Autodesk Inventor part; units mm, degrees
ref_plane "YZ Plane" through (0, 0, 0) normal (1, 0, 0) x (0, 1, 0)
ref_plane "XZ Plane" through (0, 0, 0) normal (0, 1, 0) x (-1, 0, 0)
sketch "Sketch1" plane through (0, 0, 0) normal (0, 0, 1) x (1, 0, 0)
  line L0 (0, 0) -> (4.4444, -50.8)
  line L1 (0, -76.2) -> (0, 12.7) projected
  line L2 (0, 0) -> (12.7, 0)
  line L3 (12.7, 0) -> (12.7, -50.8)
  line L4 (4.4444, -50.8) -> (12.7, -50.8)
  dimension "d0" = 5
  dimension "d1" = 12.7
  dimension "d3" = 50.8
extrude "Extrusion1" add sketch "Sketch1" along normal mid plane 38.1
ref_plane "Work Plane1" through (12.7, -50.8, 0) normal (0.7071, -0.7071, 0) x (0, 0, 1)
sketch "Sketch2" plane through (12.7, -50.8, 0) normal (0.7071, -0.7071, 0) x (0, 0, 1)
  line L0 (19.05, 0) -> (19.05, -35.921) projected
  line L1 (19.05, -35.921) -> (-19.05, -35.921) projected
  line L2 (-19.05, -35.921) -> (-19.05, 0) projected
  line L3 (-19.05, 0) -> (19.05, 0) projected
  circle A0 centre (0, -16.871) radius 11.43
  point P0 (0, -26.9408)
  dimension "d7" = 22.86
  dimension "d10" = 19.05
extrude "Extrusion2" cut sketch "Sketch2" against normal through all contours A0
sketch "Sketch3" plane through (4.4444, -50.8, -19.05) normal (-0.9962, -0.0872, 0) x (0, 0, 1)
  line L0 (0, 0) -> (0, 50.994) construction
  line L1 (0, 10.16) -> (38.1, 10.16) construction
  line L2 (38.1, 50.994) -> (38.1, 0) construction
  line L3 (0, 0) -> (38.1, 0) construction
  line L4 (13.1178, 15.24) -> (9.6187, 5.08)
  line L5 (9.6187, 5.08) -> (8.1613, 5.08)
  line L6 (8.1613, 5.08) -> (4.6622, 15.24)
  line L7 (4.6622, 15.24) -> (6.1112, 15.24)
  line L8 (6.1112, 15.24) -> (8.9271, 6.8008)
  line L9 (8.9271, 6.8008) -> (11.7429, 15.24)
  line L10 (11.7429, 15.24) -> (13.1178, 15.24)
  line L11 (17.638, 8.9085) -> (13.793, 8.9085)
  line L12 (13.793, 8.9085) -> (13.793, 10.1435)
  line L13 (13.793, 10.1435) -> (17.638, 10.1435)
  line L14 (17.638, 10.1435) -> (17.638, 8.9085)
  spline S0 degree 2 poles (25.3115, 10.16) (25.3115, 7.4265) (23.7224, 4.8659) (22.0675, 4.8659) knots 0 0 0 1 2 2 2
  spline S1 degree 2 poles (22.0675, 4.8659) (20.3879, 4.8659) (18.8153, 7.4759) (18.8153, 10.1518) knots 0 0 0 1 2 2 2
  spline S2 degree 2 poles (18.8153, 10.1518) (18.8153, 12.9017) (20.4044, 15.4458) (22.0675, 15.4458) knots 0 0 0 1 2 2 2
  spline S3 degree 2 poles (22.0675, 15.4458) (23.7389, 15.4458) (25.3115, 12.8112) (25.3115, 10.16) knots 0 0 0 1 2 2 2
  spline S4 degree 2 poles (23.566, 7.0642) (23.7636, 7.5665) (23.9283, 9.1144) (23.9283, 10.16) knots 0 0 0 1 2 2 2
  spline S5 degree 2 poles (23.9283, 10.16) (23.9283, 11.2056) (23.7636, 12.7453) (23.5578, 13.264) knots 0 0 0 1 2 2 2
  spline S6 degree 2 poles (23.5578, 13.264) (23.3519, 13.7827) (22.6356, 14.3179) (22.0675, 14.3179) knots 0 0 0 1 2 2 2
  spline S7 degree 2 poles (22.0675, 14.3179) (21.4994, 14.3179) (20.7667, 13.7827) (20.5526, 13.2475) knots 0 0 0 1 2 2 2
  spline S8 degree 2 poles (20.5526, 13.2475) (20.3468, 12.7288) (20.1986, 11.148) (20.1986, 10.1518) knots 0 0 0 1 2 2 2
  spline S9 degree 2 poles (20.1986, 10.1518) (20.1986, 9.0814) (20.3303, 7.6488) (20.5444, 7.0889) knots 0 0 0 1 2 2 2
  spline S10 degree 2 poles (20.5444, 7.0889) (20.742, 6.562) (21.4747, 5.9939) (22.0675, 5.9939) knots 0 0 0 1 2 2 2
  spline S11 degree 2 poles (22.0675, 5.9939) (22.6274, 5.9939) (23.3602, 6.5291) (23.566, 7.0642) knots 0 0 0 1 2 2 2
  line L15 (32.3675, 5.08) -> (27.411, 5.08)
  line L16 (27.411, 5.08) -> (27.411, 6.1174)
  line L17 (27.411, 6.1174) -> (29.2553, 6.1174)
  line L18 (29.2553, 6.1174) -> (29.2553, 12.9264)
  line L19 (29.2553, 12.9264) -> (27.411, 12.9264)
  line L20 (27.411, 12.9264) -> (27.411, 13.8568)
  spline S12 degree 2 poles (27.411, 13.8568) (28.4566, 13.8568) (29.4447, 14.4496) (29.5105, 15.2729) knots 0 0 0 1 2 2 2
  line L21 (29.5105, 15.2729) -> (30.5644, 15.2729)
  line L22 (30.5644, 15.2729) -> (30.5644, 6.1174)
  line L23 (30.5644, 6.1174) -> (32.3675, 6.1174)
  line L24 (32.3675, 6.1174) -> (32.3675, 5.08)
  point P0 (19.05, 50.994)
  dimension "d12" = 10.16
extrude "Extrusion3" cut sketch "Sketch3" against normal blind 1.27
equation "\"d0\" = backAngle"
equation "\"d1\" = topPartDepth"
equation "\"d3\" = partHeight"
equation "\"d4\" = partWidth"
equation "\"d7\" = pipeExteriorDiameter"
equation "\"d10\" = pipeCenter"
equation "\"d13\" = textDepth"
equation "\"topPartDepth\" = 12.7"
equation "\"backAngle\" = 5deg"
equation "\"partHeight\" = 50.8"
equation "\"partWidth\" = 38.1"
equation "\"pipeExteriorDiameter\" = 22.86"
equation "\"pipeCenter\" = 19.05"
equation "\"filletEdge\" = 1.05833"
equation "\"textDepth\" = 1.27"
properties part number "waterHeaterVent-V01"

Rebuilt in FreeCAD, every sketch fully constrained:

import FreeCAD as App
import Part
import Sketcher
from FreeCAD import Vector
Q = App.Units.Quantity


def add_polygon(sketch, points):
    """Adds a closed chain of lines whose ends are joined by coincident constraints."""
    first, n = sketch.GeometryCount, len(points)
    for a, b in zip(points, points[1:] + points[:1]):
        sketch.addGeometry(Part.LineSegment(App.Vector(*a, 0), App.Vector(*b, 0)), False)
    for i in range(n):
        sketch.addConstraint(Sketcher.Constraint("Coincident", first + i, 2, first + (i + 1) % n, 1))

doc = App.newDocument("Part")
body = doc.addObject("PartDesign::Body", "Body")

sketch1 = doc.addObject("Sketcher::SketchObject", "Sketch")
body.addObject(sketch1)
sketch1.AttachmentSupport = (doc.XY_Plane, [""])
sketch1.MapMode = "FlatFace"
add_polygon(sketch1, [(12.7, 0), (0, 0), (4.4444, -50.8), (12.7, -50.8)])
sketch1.addConstraint(Sketcher.Constraint("Horizontal", 0))
sketch1.addConstraint(Sketcher.Constraint("Horizontal", 2))
sketch1.addConstraint(Sketcher.Constraint("Vertical", 3))
sketch1.addConstraint(Sketcher.Constraint("Coincident", 0, 2, -1, 1))
sketch1.addConstraint(Sketcher.Constraint("DistanceY", 3, 1, 3, 2, Q("2 in")))
sketch1.addConstraint(Sketcher.Constraint("DistanceX", 0, 2, 0, 1, Q("0.5 in")))
sketch1.addConstraint(Sketcher.Constraint("Angle", 1, Q("-85 deg")))
pad1 = doc.addObject("PartDesign::Pad", "Pad")
body.addObject(pad1)
pad1.Profile = sketch1
pad1.Length = Q("1.5 in")
pad1.Midplane = True

sketch2 = doc.addObject("Sketcher::SketchObject", "Sketch001")
body.addObject(sketch2)
sketch2.Placement = App.Placement(Vector(12.7, -50.8, 0), App.Rotation(Vector(0, 0, 1), Vector(-0.707106781, -0.707106781, 0), Vector(0.707106781, -0.707106781, 0), "ZXY"))
sketch2.addGeometry(Part.Circle(Vector(0, -16.871, 0), Vector(0, 0, 1), 11.43), False)
sketch2.addConstraint(Sketcher.Constraint("PointOnObject", 0, 3, -2))
sketch2.addConstraint(Sketcher.Constraint("Diameter", 0, Q("0.9 in")))
sketch2.addConstraint(Sketcher.Constraint("DistanceY", 0, 3, -1, 1, 16.871))
pocket1 = doc.addObject("PartDesign::Pocket", "Pocket")
body.addObject(pocket1)
pocket1.Profile = sketch2
pocket1.Type = "ThroughAll"

sketch3 = doc.addObject("Sketcher::SketchObject", "Sketch002")
body.addObject(sketch3)
sketch3.Placement = App.Placement(Vector(4.4444, -50.8, -19.05), App.Rotation(Vector(0, 0, 1), Vector(-0.087155743, 0.996194698, 0), Vector(-0.996194698, -0.087155743, 0), "ZXY"))
add_polygon(sketch3, [(9.6187, 5.08), (13.1178, 15.24), (11.7429, 15.24), (8.9271, 6.8008), (6.1112, 15.24), (4.6622, 15.24), (8.1613, 5.08)])
add_polygon(sketch3, [(13.793, 8.9085), (17.638, 8.9085), (17.638, 10.1435), (13.793, 10.1435)])
sketch3.addGeometry(Part.BSplineCurve([Vector(25.3115, 10.16, 0), Vector(25.3115, 7.4265, 0), Vector(23.7224, 4.8659, 0), Vector(22.0675, 4.8659, 0)], [3, 1, 3], [0, 1, 2], False, 2, [1, 1, 1, 1], False), False)
sketch3.addGeometry(Part.BSplineCurve([Vector(22.0675, 15.4458, 0), Vector(23.7389, 15.4458, 0), Vector(25.3115, 12.8112, 0), Vector(25.3115, 10.16, 0)], [3, 1, 3], [0, 1, 2], False, 2, [1, 1, 1, 1], False), False)
sketch3.addGeometry(Part.BSplineCurve([Vector(18.8153, 10.1518, 0), Vector(18.8153, 12.9017, 0), Vector(20.4044, 15.4458, 0), Vector(22.0675, 15.4458, 0)], [3, 1, 3], [0, 1, 2], False, 2, [1, 1, 1, 1], False), False)
sketch3.addGeometry(Part.BSplineCurve([Vector(22.0675, 4.8659, 0), Vector(20.3879, 4.8659, 0), Vector(18.8153, 7.4759, 0), Vector(18.8153, 10.1518, 0)], [3, 1, 3], [0, 1, 2], False, 2, [1, 1, 1, 1], False), False)
sketch3.addGeometry(Part.BSplineCurve([Vector(23.566, 7.0642, 0), Vector(23.7636, 7.5665, 0), Vector(23.9283, 9.1144, 0), Vector(23.9283, 10.16, 0)], [3, 1, 3], [0, 1, 2], False, 2, [1, 1, 1, 1], False), False)
sketch3.addGeometry(Part.BSplineCurve([Vector(22.0675, 5.9939, 0), Vector(22.6274, 5.9939, 0), Vector(23.3602, 6.5291, 0), Vector(23.566, 7.0642, 0)], [3, 1, 3], [0, 1, 2], False, 2, [1, 1, 1, 1], False), False)
sketch3.addGeometry(Part.BSplineCurve([Vector(20.5444, 7.0889, 0), Vector(20.742, 6.562, 0), Vector(21.4747, 5.9939, 0), Vector(22.0675, 5.9939, 0)], [3, 1, 3], [0, 1, 2], False, 2, [1, 1, 1, 1], False), False)
sketch3.addGeometry(Part.BSplineCurve([Vector(20.1986, 10.1518, 0), Vector(20.1986, 9.0814, 0), Vector(20.3303, 7.6488, 0), Vector(20.5444, 7.0889, 0)], [3, 1, 3], [0, 1, 2], False, 2, [1, 1, 1, 1], False), False)
sketch3.addGeometry(Part.BSplineCurve([Vector(20.5526, 13.2475, 0), Vector(20.3468, 12.7288, 0), Vector(20.1986, 11.148, 0), Vector(20.1986, 10.1518, 0)], [3, 1, 3], [0, 1, 2], False, 2, [1, 1, 1, 1], False), False)
sketch3.addGeometry(Part.BSplineCurve([Vector(22.0675, 14.3179, 0), Vector(21.4994, 14.3179, 0), Vector(20.7667, 13.7827, 0), Vector(20.5526, 13.2475, 0)], [3, 1, 3], [0, 1, 2], False, 2, [1, 1, 1, 1], False), False)
sketch3.addGeometry(Part.BSplineCurve([Vector(23.5578, 13.264, 0), Vector(23.3519, 13.7827, 0), Vector(22.6356, 14.3179, 0), Vector(22.0675, 14.3179, 0)], [3, 1, 3], [0, 1, 2], False, 2, [1, 1, 1, 1], False), False)
sketch3.addGeometry(Part.BSplineCurve([Vector(23.9283, 10.16, 0), Vector(23.9283, 11.2056, 0), Vector(23.7636, 12.7453, 0), Vector(23.5578, 13.264, 0)], [3, 1, 3], [0, 1, 2], False, 2, [1, 1, 1, 1], False), False)
sketch3.addGeometry(Part.LineSegment(Vector(27.411, 5.08, 0), Vector(32.3675, 5.08, 0)), False)
sketch3.addGeometry(Part.LineSegment(Vector(32.3675, 5.08, 0), Vector(32.3675, 6.1174, 0)), False)
sketch3.addGeometry(Part.LineSegment(Vector(32.3675, 6.1174, 0), Vector(30.5644, 6.1174, 0)), False)
sketch3.addGeometry(Part.LineSegment(Vector(30.5644, 6.1174, 0), Vector(30.5644, 15.2729, 0)), False)
sketch3.addGeometry(Part.LineSegment(Vector(30.5644, 15.2729, 0), Vector(29.5105, 15.2729, 0)), False)
sketch3.addGeometry(Part.BSplineCurve([Vector(27.411, 13.8568, 0), Vector(28.4566, 13.8568, 0), Vector(29.4447, 14.4496, 0), Vector(29.5105, 15.2729, 0)], [3, 1, 3], [0, 1, 2], False, 2, [1, 1, 1, 1], False), False)
sketch3.addGeometry(Part.LineSegment(Vector(27.411, 13.8568, 0), Vector(27.411, 12.9264, 0)), False)
sketch3.addGeometry(Part.LineSegment(Vector(27.411, 12.9264, 0), Vector(29.2553, 12.9264, 0)), False)
sketch3.addGeometry(Part.LineSegment(Vector(29.2553, 12.9264, 0), Vector(29.2553, 6.1174, 0)), False)
sketch3.addGeometry(Part.LineSegment(Vector(29.2553, 6.1174, 0), Vector(27.411, 6.1174, 0)), False)
sketch3.addGeometry(Part.LineSegment(Vector(27.411, 6.1174, 0), Vector(27.411, 5.08, 0)), False)
sketch3.addConstraint(Sketcher.Constraint("Block", 11))
sketch3.addConstraint(Sketcher.Constraint("Block", 12))
sketch3.addConstraint(Sketcher.Constraint("Block", 13))
sketch3.addConstraint(Sketcher.Constraint("Block", 14))
sketch3.addConstraint(Sketcher.Constraint("Block", 15))
sketch3.addConstraint(Sketcher.Constraint("Block", 16))
sketch3.addConstraint(Sketcher.Constraint("Block", 17))
sketch3.addConstraint(Sketcher.Constraint("Block", 18))
sketch3.addConstraint(Sketcher.Constraint("Block", 19))
sketch3.addConstraint(Sketcher.Constraint("Block", 20))
sketch3.addConstraint(Sketcher.Constraint("Block", 21))
sketch3.addConstraint(Sketcher.Constraint("Block", 22))
sketch3.addConstraint(Sketcher.Constraint("Block", 28))
sketch3.addConstraint(Sketcher.Constraint("Coincident", 23, 2, 24, 1))
sketch3.addConstraint(Sketcher.Constraint("Coincident", 24, 2, 25, 1))
sketch3.addConstraint(Sketcher.Constraint("Coincident", 25, 2, 26, 1))
sketch3.addConstraint(Sketcher.Constraint("Coincident", 26, 2, 27, 1))
sketch3.addConstraint(Sketcher.Constraint("Coincident", 27, 2, 28, 2))
sketch3.addConstraint(Sketcher.Constraint("Coincident", 28, 1, 29, 1))
sketch3.addConstraint(Sketcher.Constraint("Coincident", 29, 2, 30, 1))
sketch3.addConstraint(Sketcher.Constraint("Coincident", 30, 2, 31, 1))
sketch3.addConstraint(Sketcher.Constraint("Coincident", 31, 2, 32, 1))
sketch3.addConstraint(Sketcher.Constraint("Coincident", 32, 2, 33, 1))
sketch3.addConstraint(Sketcher.Constraint("Coincident", 33, 2, 23, 1))
sketch3.addConstraint(Sketcher.Constraint("Horizontal", 1))
sketch3.addConstraint(Sketcher.Constraint("Horizontal", 4))
sketch3.addConstraint(Sketcher.Constraint("Horizontal", 6))
sketch3.addConstraint(Sketcher.Constraint("Horizontal", 7))
sketch3.addConstraint(Sketcher.Constraint("Vertical", 8))
sketch3.addConstraint(Sketcher.Constraint("Horizontal", 9))
sketch3.addConstraint(Sketcher.Constraint("Vertical", 10))
sketch3.addConstraint(Sketcher.Constraint("Horizontal", 23))
sketch3.addConstraint(Sketcher.Constraint("Vertical", 24))
sketch3.addConstraint(Sketcher.Constraint("Horizontal", 25))
sketch3.addConstraint(Sketcher.Constraint("Vertical", 26))
sketch3.addConstraint(Sketcher.Constraint("Horizontal", 27))
sketch3.addConstraint(Sketcher.Constraint("Vertical", 29))
sketch3.addConstraint(Sketcher.Constraint("Horizontal", 30))
sketch3.addConstraint(Sketcher.Constraint("Vertical", 31))
sketch3.addConstraint(Sketcher.Constraint("Horizontal", 32))
sketch3.addConstraint(Sketcher.Constraint("Vertical", 33))
sketch3.addConstraint(Sketcher.Constraint("Horizontal", 1, 2, 3, 2))
sketch3.addConstraint(Sketcher.Constraint("Horizontal", 6, 2, 23, 2))
sketch3.addConstraint(Sketcher.Constraint("Horizontal", 25, 2, 31, 2))
sketch3.addConstraint(Sketcher.Constraint("Vertical", 29, 2, 32, 2))
sketch3.addConstraint(Sketcher.Constraint("Equal", 2, 3))
sketch3.addConstraint(Sketcher.Constraint("Equal", 0, 5))
sketch3.addConstraint(Sketcher.Constraint("DistanceY", 5, 2, 3, 2, Q("0.4 in")))
sketch3.addConstraint(Sketcher.Constraint("DistanceY", -1, 1, 0, 2, Q("0.6 in")))
sketch3.addConstraint(Sketcher.Constraint("DistanceX", 25, 2, 25, 1, Q("0.071 in")))
sketch3.addConstraint(Sketcher.Constraint("DistanceX", 27, 2, 27, 1, Q("0.0415 in")))
sketch3.addConstraint(Sketcher.Constraint("DistanceX", 30, 1, 30, 2, Q("0.0726 in")))
sketch3.addConstraint(Sketcher.Constraint("DistanceX", 2, 2, 0, 2, Q("0.165 in")))
sketch3.addConstraint(Sketcher.Constraint("DistanceX", 5, 2, 1, 2, Q("0.141 in")))
sketch3.addConstraint(Sketcher.Constraint("DistanceX", 1, 2, 1, 1, 1.375))
sketch3.addConstraint(Sketcher.Constraint("DistanceX", 4, 2, 4, 1, 1.449))
sketch3.addConstraint(Sketcher.Constraint("DistanceX", 7, 1, 7, 2, 3.845))
sketch3.addConstraint(Sketcher.Constraint("DistanceY", 8, 1, 8, 2, 1.235))
sketch3.addConstraint(Sketcher.Constraint("DistanceY", 24, 1, 24, 2, 1.0374))
sketch3.addConstraint(Sketcher.Constraint("DistanceY", 29, 2, 29, 1, 0.9304))
sketch3.addConstraint(Sketcher.Constraint("DistanceX", -1, 1, 3, 2, Q("0.2406 in")))
sketch3.addConstraint(Sketcher.Constraint("DistanceX", -1, 1, 7, 2, Q("0.6944 in")))
sketch3.addConstraint(Sketcher.Constraint("DistanceY", 2, 2, 8, 2, Q("0.1316 in")))
sketch3.addConstraint(Sketcher.Constraint("DistanceY", 24, 2, 8, 2, Q("0.1585 in")))
pocket2 = doc.addObject("PartDesign::Pocket", "Pocket001")
body.addObject(pocket2)
pocket2.Profile = sketch3
pocket2.Length = Q("0.05 in")

doc.recompute()
